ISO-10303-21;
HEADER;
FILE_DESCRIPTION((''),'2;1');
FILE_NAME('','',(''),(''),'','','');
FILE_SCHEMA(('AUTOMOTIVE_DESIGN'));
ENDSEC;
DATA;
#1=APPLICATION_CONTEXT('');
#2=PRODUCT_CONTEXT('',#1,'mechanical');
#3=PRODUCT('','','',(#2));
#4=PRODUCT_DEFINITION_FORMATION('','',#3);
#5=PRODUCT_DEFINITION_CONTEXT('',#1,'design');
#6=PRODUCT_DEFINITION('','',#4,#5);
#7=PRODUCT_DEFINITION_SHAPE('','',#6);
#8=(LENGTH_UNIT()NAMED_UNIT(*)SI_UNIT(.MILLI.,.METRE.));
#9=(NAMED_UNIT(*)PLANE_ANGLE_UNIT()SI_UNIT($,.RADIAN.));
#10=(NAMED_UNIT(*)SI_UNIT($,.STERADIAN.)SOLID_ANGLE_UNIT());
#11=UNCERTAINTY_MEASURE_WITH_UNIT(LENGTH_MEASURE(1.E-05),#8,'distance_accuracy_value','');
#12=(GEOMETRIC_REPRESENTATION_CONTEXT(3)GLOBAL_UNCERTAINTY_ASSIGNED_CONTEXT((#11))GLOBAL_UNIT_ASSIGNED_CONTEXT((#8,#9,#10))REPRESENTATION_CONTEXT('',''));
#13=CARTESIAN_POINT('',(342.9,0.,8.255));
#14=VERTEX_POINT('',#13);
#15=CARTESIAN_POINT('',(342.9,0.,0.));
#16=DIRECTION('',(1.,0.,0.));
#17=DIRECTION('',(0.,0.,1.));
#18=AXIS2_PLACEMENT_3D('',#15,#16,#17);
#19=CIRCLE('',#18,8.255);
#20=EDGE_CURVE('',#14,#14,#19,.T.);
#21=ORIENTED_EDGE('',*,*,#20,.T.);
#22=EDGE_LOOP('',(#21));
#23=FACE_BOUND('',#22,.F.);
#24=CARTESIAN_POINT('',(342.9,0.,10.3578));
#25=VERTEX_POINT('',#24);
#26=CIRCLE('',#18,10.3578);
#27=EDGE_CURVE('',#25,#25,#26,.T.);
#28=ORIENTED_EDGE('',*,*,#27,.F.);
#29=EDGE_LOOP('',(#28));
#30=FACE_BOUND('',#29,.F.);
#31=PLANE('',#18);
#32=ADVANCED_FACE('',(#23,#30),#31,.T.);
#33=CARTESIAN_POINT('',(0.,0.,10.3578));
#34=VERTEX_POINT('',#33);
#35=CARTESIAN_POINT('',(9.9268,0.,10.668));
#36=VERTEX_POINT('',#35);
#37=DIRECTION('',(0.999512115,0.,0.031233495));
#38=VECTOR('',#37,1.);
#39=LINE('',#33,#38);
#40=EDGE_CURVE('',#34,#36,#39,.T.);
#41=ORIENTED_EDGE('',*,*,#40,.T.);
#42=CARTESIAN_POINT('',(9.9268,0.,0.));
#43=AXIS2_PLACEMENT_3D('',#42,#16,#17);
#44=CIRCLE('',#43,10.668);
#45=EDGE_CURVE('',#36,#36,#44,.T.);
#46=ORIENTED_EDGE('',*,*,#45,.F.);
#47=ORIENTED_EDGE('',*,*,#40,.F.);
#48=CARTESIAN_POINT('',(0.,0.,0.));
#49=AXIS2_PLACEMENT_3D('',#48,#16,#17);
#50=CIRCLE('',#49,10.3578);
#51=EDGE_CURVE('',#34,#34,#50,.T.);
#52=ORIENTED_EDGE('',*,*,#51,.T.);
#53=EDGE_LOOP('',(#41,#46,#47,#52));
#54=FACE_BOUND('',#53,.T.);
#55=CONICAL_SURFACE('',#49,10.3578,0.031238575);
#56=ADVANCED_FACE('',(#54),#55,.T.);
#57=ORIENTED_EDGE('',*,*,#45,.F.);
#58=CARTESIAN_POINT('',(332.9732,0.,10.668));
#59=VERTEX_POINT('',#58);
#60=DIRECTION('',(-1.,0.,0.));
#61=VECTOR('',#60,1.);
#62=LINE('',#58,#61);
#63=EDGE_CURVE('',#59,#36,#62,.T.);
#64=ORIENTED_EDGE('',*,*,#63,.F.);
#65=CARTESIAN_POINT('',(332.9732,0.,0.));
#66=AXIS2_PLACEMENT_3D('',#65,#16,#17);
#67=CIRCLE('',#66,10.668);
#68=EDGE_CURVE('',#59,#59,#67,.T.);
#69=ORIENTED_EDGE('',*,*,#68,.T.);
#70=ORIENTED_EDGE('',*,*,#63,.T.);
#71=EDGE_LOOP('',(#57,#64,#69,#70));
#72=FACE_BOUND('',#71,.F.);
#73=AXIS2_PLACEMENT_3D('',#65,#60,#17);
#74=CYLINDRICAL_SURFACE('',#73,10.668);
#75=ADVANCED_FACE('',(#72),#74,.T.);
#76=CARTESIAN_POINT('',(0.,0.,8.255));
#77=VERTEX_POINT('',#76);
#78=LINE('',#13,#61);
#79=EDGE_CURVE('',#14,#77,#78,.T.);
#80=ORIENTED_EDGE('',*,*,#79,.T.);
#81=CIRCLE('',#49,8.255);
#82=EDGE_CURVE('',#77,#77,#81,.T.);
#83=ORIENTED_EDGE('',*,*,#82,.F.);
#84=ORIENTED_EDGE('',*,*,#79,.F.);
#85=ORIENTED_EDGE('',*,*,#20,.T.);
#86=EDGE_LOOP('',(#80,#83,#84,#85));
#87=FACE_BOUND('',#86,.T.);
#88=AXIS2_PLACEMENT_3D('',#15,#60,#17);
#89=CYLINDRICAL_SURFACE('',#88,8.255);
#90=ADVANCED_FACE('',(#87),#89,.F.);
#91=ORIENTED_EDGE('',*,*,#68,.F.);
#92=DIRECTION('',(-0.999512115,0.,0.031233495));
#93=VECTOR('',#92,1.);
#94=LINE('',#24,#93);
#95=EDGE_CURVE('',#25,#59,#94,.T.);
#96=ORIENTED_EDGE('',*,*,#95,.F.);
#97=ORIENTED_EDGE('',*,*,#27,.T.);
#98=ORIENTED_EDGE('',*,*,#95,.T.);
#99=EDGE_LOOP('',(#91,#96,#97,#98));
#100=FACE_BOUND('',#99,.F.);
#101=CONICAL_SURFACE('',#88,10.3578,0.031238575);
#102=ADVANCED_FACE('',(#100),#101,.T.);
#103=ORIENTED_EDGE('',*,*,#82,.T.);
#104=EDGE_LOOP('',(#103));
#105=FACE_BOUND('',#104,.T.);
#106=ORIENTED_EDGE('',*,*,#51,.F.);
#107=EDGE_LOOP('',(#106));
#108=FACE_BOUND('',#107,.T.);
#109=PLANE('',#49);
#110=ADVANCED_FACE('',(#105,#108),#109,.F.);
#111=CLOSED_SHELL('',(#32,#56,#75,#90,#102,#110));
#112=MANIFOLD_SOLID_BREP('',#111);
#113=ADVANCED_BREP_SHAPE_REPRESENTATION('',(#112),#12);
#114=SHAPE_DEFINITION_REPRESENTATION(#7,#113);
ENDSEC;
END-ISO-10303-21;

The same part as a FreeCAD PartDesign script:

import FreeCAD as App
import Part
import Sketcher
Q = App.Units.Quantity


def add_polygon(sketch, points):
    """Adds a closed chain of lines whose ends are joined by coincident constraints."""
    first, n = sketch.GeometryCount, len(points)
    for a, b in zip(points, points[1:] + points[:1]):
        sketch.addGeometry(Part.LineSegment(App.Vector(*a, 0), App.Vector(*b, 0)), False)
    for i in range(n):
        sketch.addConstraint(Sketcher.Constraint("Coincident", first + i, 2, first + (i + 1) % n, 1))

doc = App.newDocument("Part")
params = doc.addObject("Spreadsheet::Sheet", "Params")
for row, (alias, value) in enumerate([
    ("sketch1_width", "13.5 in"),
    ("sketch1_length", "0.391 in"),
    ("revolution_angle", "360 deg"),
], start=1):
    params.set(f"A{row}", alias)
    params.set(f"B{row}", "=" + value)
    params.setAlias(f"B{row}", alias)

body = doc.addObject("PartDesign::Body", "Body")

# Sketch on XZ plane
sketch1 = body.newObject("Sketcher::SketchObject", "Sketch")
sketch1.AttachmentSupport = (doc.getObject("XZ_Plane"), [""])
sketch1.MapMode = "FlatFace"
add_polygon(sketch1, [(342.9, 10.3578), (342.9, 8.255), (0, 8.255), (0, 10.3578), (9.9268, 10.668), (332.9732, 10.668)])  # lines 0-5
sketch1.addConstraint([
    Sketcher.Constraint("Vertical", 0),
    Sketcher.Constraint("Horizontal", 1),
    Sketcher.Constraint("Vertical", 2),
    Sketcher.Constraint("Horizontal", 4),
    Sketcher.Constraint("PointOnObject", 1, 2, -2),
    Sketcher.Constraint("Horizontal", 2, 2, 5, 2),
    Sketcher.Constraint("Equal", 3, 5),
    Sketcher.Constraint("DistanceX", 1, 2, 1, 1, Q("13.5 in")),
    Sketcher.Constraint("Angle", 3, Q("1.7898 deg")),
    Sketcher.Constraint("DistanceY", -1, 1, 3, 2, Q("0.42 in")),
    Sketcher.Constraint("Distance", 3, Q("0.391 in")),
    Sketcher.Constraint("DistanceY", -1, 1, 0, 2, Q("0.325 in")),
])
sketch1.setExpression("Constraints[13]", "Params.sketch1_width")
sketch1.setExpression("Constraints[16]", "Params.sketch1_length")
revolution = body.newObject("PartDesign::Revolution", "Revolution")
revolution.Profile = sketch1
revolution.ReferenceAxis = (sketch1, ["H_Axis"])
revolution.setExpression("Angle", "Params.revolution_angle")

doc.recompute()
